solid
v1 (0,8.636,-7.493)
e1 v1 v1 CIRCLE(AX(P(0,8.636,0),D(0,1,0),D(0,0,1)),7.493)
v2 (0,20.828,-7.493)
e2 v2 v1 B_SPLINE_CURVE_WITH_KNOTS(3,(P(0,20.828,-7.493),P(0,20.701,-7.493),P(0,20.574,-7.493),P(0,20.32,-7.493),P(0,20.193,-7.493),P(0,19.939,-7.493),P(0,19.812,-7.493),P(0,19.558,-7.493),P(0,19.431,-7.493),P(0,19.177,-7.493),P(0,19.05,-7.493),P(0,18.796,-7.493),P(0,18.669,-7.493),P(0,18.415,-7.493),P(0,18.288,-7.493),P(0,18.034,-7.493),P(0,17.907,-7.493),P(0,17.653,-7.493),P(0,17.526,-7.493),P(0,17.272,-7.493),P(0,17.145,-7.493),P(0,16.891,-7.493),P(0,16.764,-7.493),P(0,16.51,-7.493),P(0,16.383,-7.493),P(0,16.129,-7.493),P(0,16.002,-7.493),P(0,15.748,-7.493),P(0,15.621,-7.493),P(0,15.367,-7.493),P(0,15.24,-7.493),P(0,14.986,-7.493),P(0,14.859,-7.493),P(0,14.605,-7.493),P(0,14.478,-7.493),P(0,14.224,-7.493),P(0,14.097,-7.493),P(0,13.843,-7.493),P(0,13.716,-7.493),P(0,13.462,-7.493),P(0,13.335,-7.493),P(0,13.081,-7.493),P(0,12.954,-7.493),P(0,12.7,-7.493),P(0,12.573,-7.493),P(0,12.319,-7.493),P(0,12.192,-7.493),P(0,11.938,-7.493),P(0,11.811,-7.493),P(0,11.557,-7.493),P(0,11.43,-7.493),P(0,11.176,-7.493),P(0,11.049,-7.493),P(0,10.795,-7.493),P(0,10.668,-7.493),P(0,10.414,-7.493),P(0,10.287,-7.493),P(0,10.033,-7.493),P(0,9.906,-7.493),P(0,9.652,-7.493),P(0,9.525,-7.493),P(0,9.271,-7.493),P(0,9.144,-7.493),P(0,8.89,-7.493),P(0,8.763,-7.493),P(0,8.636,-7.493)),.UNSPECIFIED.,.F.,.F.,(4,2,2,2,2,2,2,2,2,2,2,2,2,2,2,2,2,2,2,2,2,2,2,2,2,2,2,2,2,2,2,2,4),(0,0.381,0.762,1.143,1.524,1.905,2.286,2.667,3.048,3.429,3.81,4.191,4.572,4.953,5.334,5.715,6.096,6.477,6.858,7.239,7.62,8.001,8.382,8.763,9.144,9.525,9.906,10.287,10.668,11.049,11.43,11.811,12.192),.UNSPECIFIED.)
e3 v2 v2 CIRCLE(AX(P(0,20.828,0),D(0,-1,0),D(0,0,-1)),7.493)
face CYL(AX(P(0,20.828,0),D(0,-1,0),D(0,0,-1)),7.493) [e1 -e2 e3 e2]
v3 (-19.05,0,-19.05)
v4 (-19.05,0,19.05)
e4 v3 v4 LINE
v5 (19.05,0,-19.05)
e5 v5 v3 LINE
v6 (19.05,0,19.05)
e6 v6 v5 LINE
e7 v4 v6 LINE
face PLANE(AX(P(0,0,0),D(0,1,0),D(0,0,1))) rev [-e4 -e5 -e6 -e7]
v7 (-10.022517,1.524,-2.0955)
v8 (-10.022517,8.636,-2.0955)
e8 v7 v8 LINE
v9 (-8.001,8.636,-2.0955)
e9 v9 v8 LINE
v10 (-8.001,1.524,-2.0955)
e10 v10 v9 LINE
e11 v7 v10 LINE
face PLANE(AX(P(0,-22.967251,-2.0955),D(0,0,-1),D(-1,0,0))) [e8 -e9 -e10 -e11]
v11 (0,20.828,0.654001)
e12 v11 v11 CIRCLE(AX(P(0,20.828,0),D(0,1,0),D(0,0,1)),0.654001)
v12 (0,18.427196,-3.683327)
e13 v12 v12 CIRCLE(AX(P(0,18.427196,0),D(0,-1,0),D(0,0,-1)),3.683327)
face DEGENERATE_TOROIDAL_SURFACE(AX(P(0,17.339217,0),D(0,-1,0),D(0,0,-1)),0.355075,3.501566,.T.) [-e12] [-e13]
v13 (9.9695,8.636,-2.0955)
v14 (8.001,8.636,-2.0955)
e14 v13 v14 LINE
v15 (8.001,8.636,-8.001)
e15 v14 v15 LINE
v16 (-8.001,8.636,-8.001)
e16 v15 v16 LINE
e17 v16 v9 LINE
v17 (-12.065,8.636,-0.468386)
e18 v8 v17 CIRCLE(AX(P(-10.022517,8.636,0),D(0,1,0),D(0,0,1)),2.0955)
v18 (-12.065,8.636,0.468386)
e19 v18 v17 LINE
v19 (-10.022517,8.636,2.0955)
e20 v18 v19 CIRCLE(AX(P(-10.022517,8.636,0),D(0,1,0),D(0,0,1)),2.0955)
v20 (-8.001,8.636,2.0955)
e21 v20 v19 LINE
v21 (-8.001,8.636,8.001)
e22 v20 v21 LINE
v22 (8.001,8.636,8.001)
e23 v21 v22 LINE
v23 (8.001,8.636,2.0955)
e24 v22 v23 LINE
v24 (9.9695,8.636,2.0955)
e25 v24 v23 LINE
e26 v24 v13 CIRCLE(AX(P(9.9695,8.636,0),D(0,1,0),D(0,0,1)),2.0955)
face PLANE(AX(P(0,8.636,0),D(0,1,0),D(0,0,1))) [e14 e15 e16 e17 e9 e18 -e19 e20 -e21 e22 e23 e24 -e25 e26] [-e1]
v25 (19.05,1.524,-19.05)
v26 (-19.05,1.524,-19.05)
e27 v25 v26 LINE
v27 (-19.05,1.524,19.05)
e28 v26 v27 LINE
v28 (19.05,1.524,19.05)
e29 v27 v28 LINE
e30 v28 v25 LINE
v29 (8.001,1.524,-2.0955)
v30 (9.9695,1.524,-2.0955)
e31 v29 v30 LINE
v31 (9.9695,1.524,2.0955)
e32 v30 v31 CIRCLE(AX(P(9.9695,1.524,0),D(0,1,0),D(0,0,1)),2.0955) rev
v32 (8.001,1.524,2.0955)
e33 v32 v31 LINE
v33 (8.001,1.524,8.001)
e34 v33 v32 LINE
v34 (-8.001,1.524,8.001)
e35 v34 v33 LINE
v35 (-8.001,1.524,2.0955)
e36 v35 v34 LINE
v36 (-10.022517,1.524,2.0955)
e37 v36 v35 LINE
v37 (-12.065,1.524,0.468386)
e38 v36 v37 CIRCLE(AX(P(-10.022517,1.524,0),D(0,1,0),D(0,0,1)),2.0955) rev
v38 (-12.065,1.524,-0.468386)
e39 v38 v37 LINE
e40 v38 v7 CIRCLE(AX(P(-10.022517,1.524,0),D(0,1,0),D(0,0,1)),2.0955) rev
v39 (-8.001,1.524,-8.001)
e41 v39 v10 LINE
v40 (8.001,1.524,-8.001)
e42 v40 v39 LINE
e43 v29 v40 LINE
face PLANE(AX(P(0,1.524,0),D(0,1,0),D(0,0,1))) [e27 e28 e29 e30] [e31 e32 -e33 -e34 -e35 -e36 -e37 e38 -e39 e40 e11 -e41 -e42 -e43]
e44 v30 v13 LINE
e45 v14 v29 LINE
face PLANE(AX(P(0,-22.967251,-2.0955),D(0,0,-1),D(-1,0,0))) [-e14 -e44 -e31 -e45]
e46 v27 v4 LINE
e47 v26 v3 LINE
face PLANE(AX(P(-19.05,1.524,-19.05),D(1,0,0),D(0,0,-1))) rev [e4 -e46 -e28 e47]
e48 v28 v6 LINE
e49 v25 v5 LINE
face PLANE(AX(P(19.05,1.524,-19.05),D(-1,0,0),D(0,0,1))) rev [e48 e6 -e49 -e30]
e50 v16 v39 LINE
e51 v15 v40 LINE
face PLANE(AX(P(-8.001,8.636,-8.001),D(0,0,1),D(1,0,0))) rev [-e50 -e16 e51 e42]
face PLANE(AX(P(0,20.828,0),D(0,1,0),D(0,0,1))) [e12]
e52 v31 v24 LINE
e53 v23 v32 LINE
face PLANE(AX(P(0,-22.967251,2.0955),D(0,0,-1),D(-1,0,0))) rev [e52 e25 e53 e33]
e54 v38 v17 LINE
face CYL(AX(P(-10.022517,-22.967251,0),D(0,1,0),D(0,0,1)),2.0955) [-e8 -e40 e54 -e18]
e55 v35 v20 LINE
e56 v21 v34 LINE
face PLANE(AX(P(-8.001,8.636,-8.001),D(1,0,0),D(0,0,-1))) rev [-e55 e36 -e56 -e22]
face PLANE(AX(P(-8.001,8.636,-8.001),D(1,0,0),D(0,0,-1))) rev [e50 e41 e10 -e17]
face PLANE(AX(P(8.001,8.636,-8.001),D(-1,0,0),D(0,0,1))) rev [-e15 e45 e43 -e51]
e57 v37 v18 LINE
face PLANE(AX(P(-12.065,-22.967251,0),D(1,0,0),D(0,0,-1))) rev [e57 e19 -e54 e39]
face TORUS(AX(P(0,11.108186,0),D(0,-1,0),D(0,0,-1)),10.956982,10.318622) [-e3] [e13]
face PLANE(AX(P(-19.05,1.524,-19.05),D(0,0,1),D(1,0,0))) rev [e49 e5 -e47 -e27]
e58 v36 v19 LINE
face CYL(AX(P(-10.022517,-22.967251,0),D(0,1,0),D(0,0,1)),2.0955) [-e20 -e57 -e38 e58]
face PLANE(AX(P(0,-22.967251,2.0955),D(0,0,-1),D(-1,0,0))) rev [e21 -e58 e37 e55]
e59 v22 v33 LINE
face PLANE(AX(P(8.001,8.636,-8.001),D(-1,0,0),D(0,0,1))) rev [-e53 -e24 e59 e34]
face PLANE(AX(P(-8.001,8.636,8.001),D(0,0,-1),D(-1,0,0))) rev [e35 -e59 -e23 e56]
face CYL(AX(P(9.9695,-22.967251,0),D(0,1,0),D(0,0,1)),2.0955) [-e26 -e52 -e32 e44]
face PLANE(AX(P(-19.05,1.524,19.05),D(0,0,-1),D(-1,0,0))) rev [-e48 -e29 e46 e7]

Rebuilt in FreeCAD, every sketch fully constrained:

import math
import FreeCAD as App
import Part
import Sketcher
Q = App.Units.Quantity


def add_polygon(sketch, points):
    """Adds a closed chain of lines whose ends are joined by coincident constraints."""
    first, n = sketch.GeometryCount, len(points)
    for a, b in zip(points, points[1:] + points[:1]):
        sketch.addGeometry(Part.LineSegment(App.Vector(*a, 0), App.Vector(*b, 0)), False)
    for i in range(n):
        sketch.addConstraint(Sketcher.Constraint("Coincident", first + i, 2, first + (i + 1) % n, 1))

doc = App.newDocument("Part")
params = doc.addObject("Spreadsheet::Sheet", "Params")
for row, (alias, value) in enumerate([
    ("sketch1_width", "1.5 in"),
    ("pad1_length", "0.06 in"),
    ("sketch2_width", "0.63 in"),
    ("pad2_length", "0.28 in"),
    ("sketch3_diameter", "0.59 in"),
    ("pad3_length", "0.48 in"),
    ("pad4_length", "0.28 in"),
    ("groove_angle", "360 deg"),
], start=1):
    params.set(f"A{row}", alias)
    params.set(f"B{row}", "=" + value)
    params.setAlias(f"B{row}", alias)

body = doc.addObject("PartDesign::Body", "Body")

sketch1 = body.newObject("Sketcher::SketchObject", "Sketch")
sketch1.AttachmentSupport = (doc.getObject("XZ_Plane"), [""])
sketch1.MapMode = "FlatFace"
add_polygon(sketch1, [(-19, -19), (-19, 19), (19, 19), (19, -19)])
sketch1.addConstraint([
    Sketcher.Constraint("Vertical", 0),
    Sketcher.Constraint("Horizontal", 1),
    Sketcher.Constraint("Vertical", 2),
    Sketcher.Constraint("Horizontal", 3),
    Sketcher.Constraint("Symmetric", 0, 2, 2, 2, -1, 1),
    Sketcher.Constraint("Equal", 3, 0),
    Sketcher.Constraint("DistanceX", 1, 1, 1, 2, Q("1.5 in")),
])
sketch1.setExpression("Constraints[10]", "Params.sketch1_width")
pad1 = body.newObject("PartDesign::Pad", "Pad")
pad1.Profile = sketch1
pad1.setExpression("Length", "Params.pad1_length")
pad1.Reversed = True

sketch2 = body.newObject("Sketcher::SketchObject", "Sketch001")
sketch2.AttachmentSupport = (doc.getObject("XZ_Plane"), [""])
sketch2.MapMode = "FlatFace"
sketch2.AttachmentOffset = App.Placement(App.Vector(0, 0, -0.06 * 25.4), App.Rotation())
add_polygon(sketch2, [(-8, -8), (-8, 8), (8, 8), (8, -8)])
sketch2.addConstraint([
    Sketcher.Constraint("Vertical", 0),
    Sketcher.Constraint("Horizontal", 1),
    Sketcher.Constraint("Vertical", 2),
    Sketcher.Constraint("Horizontal", 3),
    Sketcher.Constraint("Symmetric", 0, 2, 2, 2, -1, 1),
    Sketcher.Constraint("Equal", 3, 0),
    Sketcher.Constraint("DistanceX", 1, 1, 1, 2, Q("0.63 in")),
])
sketch2.setExpression("Constraints[10]", "Params.sketch2_width")
pad2 = body.newObject("PartDesign::Pad", "Pad001")
pad2.Profile = sketch2
pad2.setExpression("Length", "Params.pad2_length")
pad2.Reversed = True

sketch3 = body.newObject("Sketcher::SketchObject", "Sketch002")
sketch3.AttachmentSupport = (doc.getObject("XZ_Plane"), [""])
sketch3.MapMode = "FlatFace"
sketch3.AttachmentOffset = App.Placement(App.Vector(0, 0, -0.34 * 25.4), App.Rotation())
sketch3.addGeometry(Part.Circle(App.Vector(0, 0, 0), App.Vector(0, 0, 1), 7), False)
sketch3.addConstraint([
    Sketcher.Constraint("Coincident", 0, 3, -1, 1),
    Sketcher.Constraint("Diameter", 0, Q("0.59 in")),
])
sketch3.setExpression("Constraints[1]", "Params.sketch3_diameter")
pad3 = body.newObject("PartDesign::Pad", "Pad002")
pad3.Profile = sketch3
pad3.setExpression("Length", "Params.pad3_length")
pad3.Reversed = True

sketch4 = body.newObject("Sketcher::SketchObject", "Sketch003")
sketch4.AttachmentSupport = (doc.getObject("XZ_Plane"), [""])
sketch4.MapMode = "FlatFace"
sketch4.AttachmentOffset = App.Placement(App.Vector(0, 0, -0.34 * 25.4), App.Rotation())
sketch4.addGeometry([
    Part.ArcOfCircle(Part.Circle(App.Vector(-10, 0, 0), App.Vector(0, 0, 1), 2.1), math.radians(-167), math.radians(-90)),
    Part.LineSegment(App.Vector(-12.1, -0.5, 0), App.Vector(-12.1, 0.5, 0)),
    Part.ArcOfCircle(Part.Circle(App.Vector(-10, 0, 0), App.Vector(0, 0, 1), 2.1), math.radians(90), math.radians(167)),
    Part.LineSegment(App.Vector(-10, 2.1, 0), App.Vector(10, 2.1, 0)),
    Part.ArcOfCircle(Part.Circle(App.Vector(10, 0, 0), App.Vector(0, 0, 1), 2.1), math.radians(0), math.radians(90)),
    Part.ArcOfCircle(Part.Circle(App.Vector(10, 0, 0), App.Vector(0, 0, 1), 2.1), math.radians(-90), math.radians(0)),
    Part.LineSegment(App.Vector(10, -2.1, 0), App.Vector(-10, -2.1, 0)),
], False)
sketch4.addConstraint([
    Sketcher.Constraint("Coincident", 0, 1, 1, 1),
    Sketcher.Constraint("Coincident", 1, 2, 2, 2),
    Sketcher.Constraint("Tangent", 2, 1, 3, 1),
    Sketcher.Constraint("Tangent", 3, 2, 4, 2),
    Sketcher.Constraint("Tangent", 4, 1, 5, 2),
    Sketcher.Constraint("Tangent", 5, 1, 6, 1),
    Sketcher.Constraint("Tangent", 6, 2, 0, 2),
    Sketcher.Constraint("Vertical", 1),
    Sketcher.Constraint("Horizontal", 3),
    Sketcher.Constraint("Horizontal", 6),
    Sketcher.Constraint("Coincident", 2, 3, 0, 3),
    Sketcher.Constraint("Equal", 0, 2),
    Sketcher.Constraint("Equal", 2, 4),
    Sketcher.Constraint("PointOnObject", 0, 3, -1),
    Sketcher.Constraint("PointOnObject", 4, 1, -1),
    Sketcher.Constraint("Radius", 0, Q("0.0825 in")),
    Sketcher.Constraint("DistanceX", 0, 1, -1, 1, Q("0.475 in")),
    Sketcher.Constraint("DistanceX", -1, 1, 4, 1, Q("0.475 in")),
    Sketcher.Constraint("DistanceY", 1, 1, 1, 2, 0.936771),
])
pad4 = body.newObject("PartDesign::Pad", "Pad003")
pad4.Profile = sketch4
pad4.setExpression("Length", "Params.pad4_length")

sketch5 = body.newObject("Sketcher::SketchObject", "Sketch004")
sketch5.AttachmentSupport = (doc.getObject("XY_Plane"), [""])
sketch5.MapMode = "FlatFace"
sketch5.addGeometry([
    Part.ArcOfCircle(Part.Circle(App.Vector(-0.4, 17.3, 0), App.Vector(0, 0, 1), 3.5), math.radians(85), math.radians(162)),
    Part.ArcOfCircle(Part.Circle(App.Vector(-3.8, 8.9, 0), App.Vector(0, 0, 1), 12.5), math.radians(73), math.radians(107)),
    Part.ArcOfCircle(Part.Circle(App.Vector(-11, 11.1, 0), App.Vector(0, 0, 1), 10.3), math.radians(45), math.radians(70)),
], False)
sketch5.addConstraint([
    Sketcher.Constraint("Coincident", 0, 1, 1, 1),
    Sketcher.Constraint("Coincident", 1, 2, 2, 2),
    Sketcher.Constraint("Coincident", 2, 1, 0, 2),
    Sketcher.Constraint("Horizontal", 0, 1, 1, 2),
    Sketcher.Constraint("DistanceY", -1, 1, 0, 1, Q("0.82 in")),
    Sketcher.Constraint("DistanceX", 1, 2, -1, 1, Q("0.295 in")),
    Sketcher.Constraint("Radius", 1, 12.540392),
    Sketcher.Constraint("Radius", 2, 10.318622),
    Sketcher.Constraint("Radius", 0, 3.501566),
    Sketcher.Constraint("DistanceX", 1, 3, 0, 3, 3.4195),
    Sketcher.Constraint("DistanceX", 2, 3, -1, 1, 10.956982),
    Sketcher.Constraint("DistanceX", 0, 1, -1, 1, 0.056149),
])
groove = body.newObject("PartDesign::Groove", "Groove")
groove.Profile = sketch5
groove.ReferenceAxis = (sketch5, ["V_Axis"])
groove.setExpression("Angle", "Params.groove_angle")

doc.recompute()
